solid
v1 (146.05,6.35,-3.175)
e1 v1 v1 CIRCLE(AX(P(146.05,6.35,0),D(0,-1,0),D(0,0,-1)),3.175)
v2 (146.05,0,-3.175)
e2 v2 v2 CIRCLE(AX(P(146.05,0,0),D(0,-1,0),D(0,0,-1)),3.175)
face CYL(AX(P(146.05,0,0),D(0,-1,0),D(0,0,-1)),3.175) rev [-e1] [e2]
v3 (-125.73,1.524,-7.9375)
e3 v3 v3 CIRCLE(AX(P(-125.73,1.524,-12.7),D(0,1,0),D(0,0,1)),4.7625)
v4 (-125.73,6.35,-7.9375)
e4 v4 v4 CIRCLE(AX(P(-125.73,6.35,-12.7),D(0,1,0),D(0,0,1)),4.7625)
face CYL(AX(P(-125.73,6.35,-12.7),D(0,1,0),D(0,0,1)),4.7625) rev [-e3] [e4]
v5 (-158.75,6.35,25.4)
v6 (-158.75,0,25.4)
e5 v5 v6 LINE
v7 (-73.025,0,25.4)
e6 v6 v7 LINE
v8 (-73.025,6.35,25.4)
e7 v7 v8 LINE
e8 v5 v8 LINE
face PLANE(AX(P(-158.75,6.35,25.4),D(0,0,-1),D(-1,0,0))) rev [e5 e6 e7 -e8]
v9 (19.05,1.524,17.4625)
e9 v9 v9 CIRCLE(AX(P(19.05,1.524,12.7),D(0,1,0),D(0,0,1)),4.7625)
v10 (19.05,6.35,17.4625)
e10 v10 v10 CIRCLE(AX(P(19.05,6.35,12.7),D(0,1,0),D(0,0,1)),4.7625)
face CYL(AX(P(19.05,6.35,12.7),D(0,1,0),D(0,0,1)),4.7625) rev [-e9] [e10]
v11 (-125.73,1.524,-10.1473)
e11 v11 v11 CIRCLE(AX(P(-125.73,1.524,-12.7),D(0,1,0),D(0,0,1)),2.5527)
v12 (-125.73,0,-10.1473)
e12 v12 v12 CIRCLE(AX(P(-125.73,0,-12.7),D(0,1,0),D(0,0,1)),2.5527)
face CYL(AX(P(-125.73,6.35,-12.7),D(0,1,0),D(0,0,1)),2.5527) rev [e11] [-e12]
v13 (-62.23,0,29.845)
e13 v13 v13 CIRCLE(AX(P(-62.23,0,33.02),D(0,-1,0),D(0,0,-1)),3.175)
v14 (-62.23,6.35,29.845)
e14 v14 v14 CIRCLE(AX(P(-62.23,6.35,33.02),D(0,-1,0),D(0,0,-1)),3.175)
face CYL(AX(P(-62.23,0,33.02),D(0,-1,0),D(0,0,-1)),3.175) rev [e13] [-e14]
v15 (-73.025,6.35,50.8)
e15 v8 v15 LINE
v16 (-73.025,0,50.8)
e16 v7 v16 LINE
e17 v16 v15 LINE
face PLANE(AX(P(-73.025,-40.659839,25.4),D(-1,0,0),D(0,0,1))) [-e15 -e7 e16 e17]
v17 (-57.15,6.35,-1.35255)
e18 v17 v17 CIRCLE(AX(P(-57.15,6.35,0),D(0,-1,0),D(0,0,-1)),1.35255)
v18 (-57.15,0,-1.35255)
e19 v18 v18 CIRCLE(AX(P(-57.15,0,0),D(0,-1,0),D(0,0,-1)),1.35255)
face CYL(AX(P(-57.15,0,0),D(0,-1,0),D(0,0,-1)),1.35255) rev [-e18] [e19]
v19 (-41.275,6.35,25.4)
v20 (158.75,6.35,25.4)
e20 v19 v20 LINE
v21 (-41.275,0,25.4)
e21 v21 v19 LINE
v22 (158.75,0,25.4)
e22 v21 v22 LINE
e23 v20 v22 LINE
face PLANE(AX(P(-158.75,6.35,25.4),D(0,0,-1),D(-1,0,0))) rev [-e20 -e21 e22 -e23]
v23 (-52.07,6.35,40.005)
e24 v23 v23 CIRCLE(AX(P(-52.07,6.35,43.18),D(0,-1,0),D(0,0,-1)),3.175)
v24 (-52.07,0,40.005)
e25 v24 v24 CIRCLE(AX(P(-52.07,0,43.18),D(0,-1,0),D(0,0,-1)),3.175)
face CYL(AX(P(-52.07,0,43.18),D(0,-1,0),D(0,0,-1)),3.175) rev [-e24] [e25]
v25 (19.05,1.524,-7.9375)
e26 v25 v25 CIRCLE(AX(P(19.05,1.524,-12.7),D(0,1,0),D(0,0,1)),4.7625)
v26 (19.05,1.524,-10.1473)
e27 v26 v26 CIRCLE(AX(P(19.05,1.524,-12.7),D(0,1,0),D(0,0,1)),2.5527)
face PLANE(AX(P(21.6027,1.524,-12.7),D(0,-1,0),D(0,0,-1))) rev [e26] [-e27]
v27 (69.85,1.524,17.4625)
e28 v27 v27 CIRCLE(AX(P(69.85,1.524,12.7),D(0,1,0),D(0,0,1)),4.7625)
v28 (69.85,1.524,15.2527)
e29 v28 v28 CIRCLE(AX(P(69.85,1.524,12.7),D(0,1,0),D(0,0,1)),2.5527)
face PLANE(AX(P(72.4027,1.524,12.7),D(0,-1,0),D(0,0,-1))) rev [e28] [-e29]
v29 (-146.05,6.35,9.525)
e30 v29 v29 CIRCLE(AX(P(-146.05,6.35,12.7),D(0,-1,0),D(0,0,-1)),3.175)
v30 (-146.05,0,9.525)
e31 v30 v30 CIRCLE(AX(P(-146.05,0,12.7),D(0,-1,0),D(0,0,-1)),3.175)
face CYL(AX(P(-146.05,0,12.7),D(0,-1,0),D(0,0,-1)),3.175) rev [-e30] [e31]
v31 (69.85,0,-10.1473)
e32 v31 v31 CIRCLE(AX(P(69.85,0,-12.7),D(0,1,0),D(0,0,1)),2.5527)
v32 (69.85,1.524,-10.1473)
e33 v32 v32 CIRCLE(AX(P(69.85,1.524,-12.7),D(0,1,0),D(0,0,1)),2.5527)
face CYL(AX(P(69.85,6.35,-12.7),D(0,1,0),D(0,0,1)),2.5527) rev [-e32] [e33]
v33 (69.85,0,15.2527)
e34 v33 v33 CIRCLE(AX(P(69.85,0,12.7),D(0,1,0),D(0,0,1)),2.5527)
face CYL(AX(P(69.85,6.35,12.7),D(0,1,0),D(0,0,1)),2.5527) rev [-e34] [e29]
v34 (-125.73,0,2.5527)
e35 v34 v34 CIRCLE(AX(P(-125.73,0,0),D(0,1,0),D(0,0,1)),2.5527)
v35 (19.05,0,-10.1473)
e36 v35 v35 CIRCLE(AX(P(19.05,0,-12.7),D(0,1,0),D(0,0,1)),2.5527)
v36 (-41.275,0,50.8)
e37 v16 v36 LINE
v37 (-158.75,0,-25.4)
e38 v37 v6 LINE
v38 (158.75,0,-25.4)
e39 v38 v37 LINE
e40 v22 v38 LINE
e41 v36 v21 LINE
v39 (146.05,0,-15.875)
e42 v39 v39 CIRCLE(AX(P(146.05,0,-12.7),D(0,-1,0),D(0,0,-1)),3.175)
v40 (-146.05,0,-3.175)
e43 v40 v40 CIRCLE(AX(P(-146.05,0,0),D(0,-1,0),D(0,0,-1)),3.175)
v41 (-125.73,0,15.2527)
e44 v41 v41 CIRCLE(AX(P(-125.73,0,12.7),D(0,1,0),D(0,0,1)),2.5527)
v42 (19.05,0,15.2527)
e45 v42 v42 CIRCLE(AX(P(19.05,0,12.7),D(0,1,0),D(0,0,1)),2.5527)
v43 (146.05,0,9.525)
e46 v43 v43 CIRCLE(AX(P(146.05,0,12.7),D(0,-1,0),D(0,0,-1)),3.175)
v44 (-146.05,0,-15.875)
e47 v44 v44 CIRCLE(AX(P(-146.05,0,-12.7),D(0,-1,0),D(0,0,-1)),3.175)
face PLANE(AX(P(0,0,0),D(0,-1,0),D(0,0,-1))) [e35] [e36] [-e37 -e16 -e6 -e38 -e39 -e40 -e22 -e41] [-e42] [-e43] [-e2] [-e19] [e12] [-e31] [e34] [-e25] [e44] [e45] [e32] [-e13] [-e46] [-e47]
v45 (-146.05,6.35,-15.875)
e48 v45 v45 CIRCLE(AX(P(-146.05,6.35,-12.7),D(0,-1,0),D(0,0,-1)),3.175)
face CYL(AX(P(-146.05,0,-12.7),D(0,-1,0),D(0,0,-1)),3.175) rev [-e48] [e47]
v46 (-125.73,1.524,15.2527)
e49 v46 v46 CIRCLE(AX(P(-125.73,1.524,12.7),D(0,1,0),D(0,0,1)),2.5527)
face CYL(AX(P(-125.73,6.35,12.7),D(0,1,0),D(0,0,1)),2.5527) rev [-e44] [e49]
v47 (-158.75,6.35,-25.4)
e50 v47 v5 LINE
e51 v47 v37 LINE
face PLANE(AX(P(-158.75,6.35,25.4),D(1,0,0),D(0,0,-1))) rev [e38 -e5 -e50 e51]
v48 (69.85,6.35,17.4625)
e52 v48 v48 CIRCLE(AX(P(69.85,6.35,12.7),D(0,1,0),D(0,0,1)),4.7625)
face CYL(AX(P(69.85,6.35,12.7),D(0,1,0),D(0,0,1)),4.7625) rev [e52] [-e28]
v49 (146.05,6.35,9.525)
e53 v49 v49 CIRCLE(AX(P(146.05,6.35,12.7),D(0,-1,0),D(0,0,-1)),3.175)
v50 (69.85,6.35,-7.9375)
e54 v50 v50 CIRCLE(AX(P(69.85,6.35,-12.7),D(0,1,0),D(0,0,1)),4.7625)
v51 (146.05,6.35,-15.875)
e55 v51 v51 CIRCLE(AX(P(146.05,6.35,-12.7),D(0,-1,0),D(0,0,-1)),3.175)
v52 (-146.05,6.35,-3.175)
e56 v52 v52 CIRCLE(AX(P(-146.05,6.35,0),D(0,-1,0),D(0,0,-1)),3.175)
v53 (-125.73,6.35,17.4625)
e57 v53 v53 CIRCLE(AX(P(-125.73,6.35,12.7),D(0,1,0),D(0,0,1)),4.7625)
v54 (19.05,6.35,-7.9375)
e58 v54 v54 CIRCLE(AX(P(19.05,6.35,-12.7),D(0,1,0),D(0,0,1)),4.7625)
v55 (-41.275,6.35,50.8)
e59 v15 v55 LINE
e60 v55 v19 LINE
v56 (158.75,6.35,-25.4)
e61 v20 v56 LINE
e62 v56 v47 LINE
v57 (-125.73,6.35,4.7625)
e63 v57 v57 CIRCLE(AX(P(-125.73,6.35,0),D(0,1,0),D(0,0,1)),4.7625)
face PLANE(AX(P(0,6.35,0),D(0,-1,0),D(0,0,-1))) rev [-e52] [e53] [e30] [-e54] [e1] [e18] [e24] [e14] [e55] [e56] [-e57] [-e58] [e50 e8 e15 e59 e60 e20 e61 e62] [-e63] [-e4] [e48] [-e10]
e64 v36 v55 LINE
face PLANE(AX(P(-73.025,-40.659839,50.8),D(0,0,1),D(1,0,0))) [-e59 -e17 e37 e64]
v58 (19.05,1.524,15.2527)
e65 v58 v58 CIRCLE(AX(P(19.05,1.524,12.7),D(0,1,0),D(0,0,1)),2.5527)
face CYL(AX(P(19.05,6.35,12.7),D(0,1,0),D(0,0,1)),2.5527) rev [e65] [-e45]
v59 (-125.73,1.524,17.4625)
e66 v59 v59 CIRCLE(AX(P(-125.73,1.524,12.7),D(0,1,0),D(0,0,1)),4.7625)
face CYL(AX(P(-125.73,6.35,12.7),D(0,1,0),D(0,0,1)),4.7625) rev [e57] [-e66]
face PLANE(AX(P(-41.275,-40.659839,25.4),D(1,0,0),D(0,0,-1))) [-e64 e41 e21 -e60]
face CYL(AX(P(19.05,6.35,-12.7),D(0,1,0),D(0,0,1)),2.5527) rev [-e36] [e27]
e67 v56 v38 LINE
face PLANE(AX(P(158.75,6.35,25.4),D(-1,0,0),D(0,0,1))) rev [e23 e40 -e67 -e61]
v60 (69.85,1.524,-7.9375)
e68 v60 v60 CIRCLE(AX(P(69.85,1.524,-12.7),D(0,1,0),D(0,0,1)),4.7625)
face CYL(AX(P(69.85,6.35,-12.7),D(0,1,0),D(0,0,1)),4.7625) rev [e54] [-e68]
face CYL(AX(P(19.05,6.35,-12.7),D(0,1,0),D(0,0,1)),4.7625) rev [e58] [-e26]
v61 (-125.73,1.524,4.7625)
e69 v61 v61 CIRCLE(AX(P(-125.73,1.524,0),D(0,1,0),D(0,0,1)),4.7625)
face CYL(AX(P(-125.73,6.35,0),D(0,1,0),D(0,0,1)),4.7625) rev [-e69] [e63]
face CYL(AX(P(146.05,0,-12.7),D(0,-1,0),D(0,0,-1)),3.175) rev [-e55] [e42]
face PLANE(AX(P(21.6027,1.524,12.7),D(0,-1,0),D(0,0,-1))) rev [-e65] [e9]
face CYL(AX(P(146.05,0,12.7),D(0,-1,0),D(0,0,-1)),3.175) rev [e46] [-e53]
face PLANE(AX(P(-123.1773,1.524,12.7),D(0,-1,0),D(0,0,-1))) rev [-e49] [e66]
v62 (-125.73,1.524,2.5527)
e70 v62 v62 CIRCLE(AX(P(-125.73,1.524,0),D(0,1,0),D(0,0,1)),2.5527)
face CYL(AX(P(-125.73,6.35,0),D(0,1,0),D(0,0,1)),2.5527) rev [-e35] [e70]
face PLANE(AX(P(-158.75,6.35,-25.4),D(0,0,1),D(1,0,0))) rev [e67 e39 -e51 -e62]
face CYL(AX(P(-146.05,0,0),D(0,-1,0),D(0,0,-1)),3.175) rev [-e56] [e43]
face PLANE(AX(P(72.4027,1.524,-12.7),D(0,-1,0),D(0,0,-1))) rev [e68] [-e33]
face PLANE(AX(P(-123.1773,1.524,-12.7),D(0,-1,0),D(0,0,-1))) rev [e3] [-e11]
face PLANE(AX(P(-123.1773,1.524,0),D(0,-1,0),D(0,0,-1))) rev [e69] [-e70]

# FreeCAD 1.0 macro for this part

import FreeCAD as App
import Part
import Sketcher

V = App.Vector
Q = App.Units.Quantity


def add_polygon(sketch, points):
    """Adds a closed chain of lines whose ends are joined by coincident constraints."""
    first, n = sketch.GeometryCount, len(points)
    for a, b in zip(points, points[1:] + points[:1]):
        sketch.addGeometry(Part.LineSegment(App.Vector(*a, 0), App.Vector(*b, 0)), False)
    for i in range(n):
        sketch.addConstraint(Sketcher.Constraint("Coincident", first + i, 2, first + (i + 1) % n, 1))

doc = App.newDocument("Part")
body = doc.addObject("PartDesign::Body", "Body")

# Sketch on XZ plane
sketch1 = body.newObject("Sketcher::SketchObject", "Sketch")
sketch1.AttachmentSupport = (doc.getObject("XZ_Plane"), [""])
sketch1.MapMode = "FlatFace"
add_polygon(sketch1, [(-159, -25), (-159, 25), (159, 25), (159, -25)])  # lines 0-3
sketch1.addConstraint([
    Sketcher.Constraint("Vertical", 0),
    Sketcher.Constraint("Horizontal", 1),
    Sketcher.Constraint("Vertical", 2),
    Sketcher.Constraint("Horizontal", 3),
    Sketcher.Constraint("Symmetric", 0, 2, 2, 2, -1, 1),
    Sketcher.Constraint("DistanceY", 0, 1, 0, 2, Q("2 in")),
    Sketcher.Constraint("DistanceX", 1, 1, 1, 2, Q("12.5 in")),
])
pad1 = body.newObject("PartDesign::Pad", "Pad")
pad1.Profile = sketch1
pad1.Length = Q("0.25 in")
pad1.Reversed = True

# Sketch on XZ plane
sketch2 = body.newObject("Sketcher::SketchObject", "Sketch001")
sketch2.AttachmentSupport = (doc.getObject("XZ_Plane"), [""])
sketch2.MapMode = "FlatFace"
sketch2.AttachmentOffset = App.Placement(V(0, 0, -0.25 * 25.4), App.Rotation())
sketch2.addGeometry([
    Part.Circle(V(-125.7, 12.7, 0), V(0, 0, 1), 2.6),  # 0
    Part.Circle(V(19.1, -12.7, 0), V(0, 0, 1), 2.6),  # 1
    Part.Circle(V(69.8, -12.7, 0), V(0, 0, 1), 2.6),  # 2
    Part.Circle(V(19.1, 12.7, 0), V(0, 0, 1), 2.6),  # 3
    Part.Circle(V(69.8, 12.7, 0), V(0, 0, 1), 2.6),  # 4
    Part.Circle(V(-125.7, -12.7, 0), V(0, 0, 1), 2.6),  # 5
    Part.Circle(V(-125.7, 0, 0), V(0, 0, 1), 2.6),  # 6
], False)
sketch2.addConstraint([
    Sketcher.Constraint("Equal", 0, 1),
    Sketcher.Constraint("Equal", 1, 2),
    Sketcher.Constraint("Equal", 2, 3),
    Sketcher.Constraint("Equal", 3, 4),
    Sketcher.Constraint("Equal", 4, 5),
    Sketcher.Constraint("Equal", 5, 6),
    Sketcher.Constraint("Symmetric", 1, 3, 3, 3, -1),
    Sketcher.Constraint("Symmetric", 2, 3, 4, 3, -1),
    Sketcher.Constraint("Symmetric", 0, 3, 5, 3, -1),
    Sketcher.Constraint("PointOnObject", 6, 3, -1),
    Sketcher.Constraint("Horizontal", 1, 3, 2, 3),
    Sketcher.Constraint("Horizontal", 0, 3, 3, 3),
    Sketcher.Constraint("Vertical", 5, 3, 6, 3),
    Sketcher.Constraint("Diameter", 0, Q("0.201 in")),
    Sketcher.Constraint("DistanceY", 1, 3, 0, 3, Q("1 in")),
    Sketcher.Constraint("DistanceX", 1, 3, 2, 3, Q("2 in")),
    Sketcher.Constraint("DistanceX", 0, 3, 1, 3, Q("5.7 in")),
    Sketcher.Constraint("DistanceX", 0, 3, -1, 1, Q("4.95 in")),
])
doc.recompute()
hole = body.newObject("PartDesign::Hole", "Hole")
hole.Profile = sketch2
hole.ThreadType = "None"
hole.Diameter = Q("0.201 in")
hole.DepthType = "ThroughAll"
hole.HoleCutType = "Counterbore"
hole.HoleCutDiameter = Q("0.375 in")
hole.HoleCutDepth = Q("0.19 in")
hole.Reversed = True

# Sketch on XZ plane
sketch3 = body.newObject("Sketcher::SketchObject", "Sketch002")
sketch3.AttachmentSupport = (doc.getObject("XZ_Plane"), [""])
sketch3.MapMode = "FlatFace"
sketch3.addGeometry([
    Part.Circle(V(-146.1, 12.7, 0), V(0, 0, 1), 3.2),  # 0
    Part.Circle(V(-146.1, 0, 0), V(0, 0, 1), 3.2),  # 1
    Part.Circle(V(-146.1, -12.7, 0), V(0, 0, 1), 3.2),  # 2
    Part.Circle(V(146.1, 12.7, 0), V(0, 0, 1), 3.2),  # 3
    Part.Circle(V(146.1, 0, 0), V(0, 0, 1), 3.2),  # 4
    Part.Circle(V(146.1, -12.7, 0), V(0, 0, 1), 3.2),  # 5
], False)
sketch3.addConstraint([
    Sketcher.Constraint("Equal", 0, 1),
    Sketcher.Constraint("Equal", 1, 2),
    Sketcher.Constraint("Equal", 2, 3),
    Sketcher.Constraint("Equal", 3, 4),
    Sketcher.Constraint("Equal", 4, 5),
    Sketcher.Constraint("Symmetric", 2, 3, 3, 3, -1, 1),
    Sketcher.Constraint("Symmetric", 1, 3, 4, 3, -1, 1),
    Sketcher.Constraint("Symmetric", 0, 3, 5, 3, -1, 1),
    Sketcher.Constraint("Symmetric", 0, 3, 3, 3, -2),
    Sketcher.Constraint("PointOnObject", 1, 3, -1),
    Sketcher.Constraint("Vertical", 0, 3, 1, 3),
    Sketcher.Constraint("Diameter", 0, Q("0.25 in")),
    Sketcher.Constraint("DistanceY", 2, 3, 0, 3, Q("1 in")),
    Sketcher.Constraint("DistanceX", 0, 3, 3, 3, Q("11.5 in")),
])
doc.recompute()
hole2 = body.newObject("PartDesign::Hole", "Hole001")
hole2.Profile = sketch3
hole2.ThreadType = "None"
hole2.Diameter = Q("0.25 in")
hole2.DepthType = "ThroughAll"

# Sketch on XZ plane
sketch4 = body.newObject("Sketcher::SketchObject", "Sketch003")
sketch4.AttachmentSupport = (doc.getObject("XZ_Plane"), [""])
sketch4.MapMode = "FlatFace"
sketch4.addGeometry(Part.Circle(V(-57.1, 0, 0), V(0, 0, 1), 1.4), False)
sketch4.addConstraint([
    Sketcher.Constraint("PointOnObject", 0, 3, -1),
    Sketcher.Constraint("Diameter", 0, Q("0.1065 in")),
    Sketcher.Constraint("DistanceX", 0, 3, -1, 1, Q("2.25 in")),
])
doc.recompute()
hole3 = body.newObject("PartDesign::Hole", "Hole002")
hole3.Profile = sketch4
hole3.ThreadType = "None"
hole3.Diameter = Q("0.1065 in")
hole3.DepthType = "ThroughAll"

# Sketch on XZ plane
sketch5 = body.newObject("Sketcher::SketchObject", "Sketch004")
sketch5.AttachmentSupport = (doc.getObject("XZ_Plane"), [""])
sketch5.MapMode = "FlatFace"
sketch5.AttachmentOffset = App.Placement(V(0, 0, -0.25 * 25.4), App.Rotation())
add_polygon(sketch5, [(-73, 25), (-73, 51), (-41, 51), (-41, 25)])  # lines 0-3
sketch5.addConstraint([
    Sketcher.Constraint("Vertical", 0),
    Sketcher.Constraint("Horizontal", 1),
    Sketcher.Constraint("Vertical", 2),
    Sketcher.Constraint("Horizontal", 3),
    Sketcher.Constraint("DistanceY", 0, 1, 0, 2, Q("1 in")),
    Sketcher.Constraint("DistanceY", -1, 1, 0, 2, Q("2 in")),
    Sketcher.Constraint("DistanceX", 1, 1, 1, 2, Q("1.25 in")),
    Sketcher.Constraint("DistanceX", 0, 2, -1, 1, Q("2.875 in")),
])
pad2 = body.newObject("PartDesign::Pad", "Pad001")
pad2.Profile = sketch5
pad2.Length = Q("0.25 in")

# Sketch on XZ plane
sketch6 = body.newObject("Sketcher::SketchObject", "Sketch005")
sketch6.AttachmentSupport = (doc.getObject("XZ_Plane"), [""])
sketch6.MapMode = "FlatFace"
sketch6.addGeometry([
    Part.Circle(V(-52.1, 43.2, 0), V(0, 0, 1), 3.2),
    Part.Circle(V(-62.2, 33, 0), V(0, 0, 1), 3.2),
], False)
sketch6.addConstraint([
    Sketcher.Constraint("Equal", 0, 1),
    Sketcher.Constraint("Diameter", 0, Q("0.25 in")),
    Sketcher.Constraint("DistanceY", -1, 1, 0, 3, Q("1.7 in")),
    Sketcher.Constraint("DistanceY", -1, 1, 1, 3, Q("1.3 in")),
    Sketcher.Constraint("DistanceX", 1, 3, 0, 3, Q("0.4 in")),
    Sketcher.Constraint("DistanceX", 0, 3, -1, 1, Q("2.05 in")),
])
doc.recompute()
hole4 = body.newObject("PartDesign::Hole", "Hole003")
hole4.Profile = sketch6
hole4.ThreadType = "None"
hole4.Diameter = Q("0.25 in")
hole4.DepthType = "ThroughAll"

doc.recompute()
